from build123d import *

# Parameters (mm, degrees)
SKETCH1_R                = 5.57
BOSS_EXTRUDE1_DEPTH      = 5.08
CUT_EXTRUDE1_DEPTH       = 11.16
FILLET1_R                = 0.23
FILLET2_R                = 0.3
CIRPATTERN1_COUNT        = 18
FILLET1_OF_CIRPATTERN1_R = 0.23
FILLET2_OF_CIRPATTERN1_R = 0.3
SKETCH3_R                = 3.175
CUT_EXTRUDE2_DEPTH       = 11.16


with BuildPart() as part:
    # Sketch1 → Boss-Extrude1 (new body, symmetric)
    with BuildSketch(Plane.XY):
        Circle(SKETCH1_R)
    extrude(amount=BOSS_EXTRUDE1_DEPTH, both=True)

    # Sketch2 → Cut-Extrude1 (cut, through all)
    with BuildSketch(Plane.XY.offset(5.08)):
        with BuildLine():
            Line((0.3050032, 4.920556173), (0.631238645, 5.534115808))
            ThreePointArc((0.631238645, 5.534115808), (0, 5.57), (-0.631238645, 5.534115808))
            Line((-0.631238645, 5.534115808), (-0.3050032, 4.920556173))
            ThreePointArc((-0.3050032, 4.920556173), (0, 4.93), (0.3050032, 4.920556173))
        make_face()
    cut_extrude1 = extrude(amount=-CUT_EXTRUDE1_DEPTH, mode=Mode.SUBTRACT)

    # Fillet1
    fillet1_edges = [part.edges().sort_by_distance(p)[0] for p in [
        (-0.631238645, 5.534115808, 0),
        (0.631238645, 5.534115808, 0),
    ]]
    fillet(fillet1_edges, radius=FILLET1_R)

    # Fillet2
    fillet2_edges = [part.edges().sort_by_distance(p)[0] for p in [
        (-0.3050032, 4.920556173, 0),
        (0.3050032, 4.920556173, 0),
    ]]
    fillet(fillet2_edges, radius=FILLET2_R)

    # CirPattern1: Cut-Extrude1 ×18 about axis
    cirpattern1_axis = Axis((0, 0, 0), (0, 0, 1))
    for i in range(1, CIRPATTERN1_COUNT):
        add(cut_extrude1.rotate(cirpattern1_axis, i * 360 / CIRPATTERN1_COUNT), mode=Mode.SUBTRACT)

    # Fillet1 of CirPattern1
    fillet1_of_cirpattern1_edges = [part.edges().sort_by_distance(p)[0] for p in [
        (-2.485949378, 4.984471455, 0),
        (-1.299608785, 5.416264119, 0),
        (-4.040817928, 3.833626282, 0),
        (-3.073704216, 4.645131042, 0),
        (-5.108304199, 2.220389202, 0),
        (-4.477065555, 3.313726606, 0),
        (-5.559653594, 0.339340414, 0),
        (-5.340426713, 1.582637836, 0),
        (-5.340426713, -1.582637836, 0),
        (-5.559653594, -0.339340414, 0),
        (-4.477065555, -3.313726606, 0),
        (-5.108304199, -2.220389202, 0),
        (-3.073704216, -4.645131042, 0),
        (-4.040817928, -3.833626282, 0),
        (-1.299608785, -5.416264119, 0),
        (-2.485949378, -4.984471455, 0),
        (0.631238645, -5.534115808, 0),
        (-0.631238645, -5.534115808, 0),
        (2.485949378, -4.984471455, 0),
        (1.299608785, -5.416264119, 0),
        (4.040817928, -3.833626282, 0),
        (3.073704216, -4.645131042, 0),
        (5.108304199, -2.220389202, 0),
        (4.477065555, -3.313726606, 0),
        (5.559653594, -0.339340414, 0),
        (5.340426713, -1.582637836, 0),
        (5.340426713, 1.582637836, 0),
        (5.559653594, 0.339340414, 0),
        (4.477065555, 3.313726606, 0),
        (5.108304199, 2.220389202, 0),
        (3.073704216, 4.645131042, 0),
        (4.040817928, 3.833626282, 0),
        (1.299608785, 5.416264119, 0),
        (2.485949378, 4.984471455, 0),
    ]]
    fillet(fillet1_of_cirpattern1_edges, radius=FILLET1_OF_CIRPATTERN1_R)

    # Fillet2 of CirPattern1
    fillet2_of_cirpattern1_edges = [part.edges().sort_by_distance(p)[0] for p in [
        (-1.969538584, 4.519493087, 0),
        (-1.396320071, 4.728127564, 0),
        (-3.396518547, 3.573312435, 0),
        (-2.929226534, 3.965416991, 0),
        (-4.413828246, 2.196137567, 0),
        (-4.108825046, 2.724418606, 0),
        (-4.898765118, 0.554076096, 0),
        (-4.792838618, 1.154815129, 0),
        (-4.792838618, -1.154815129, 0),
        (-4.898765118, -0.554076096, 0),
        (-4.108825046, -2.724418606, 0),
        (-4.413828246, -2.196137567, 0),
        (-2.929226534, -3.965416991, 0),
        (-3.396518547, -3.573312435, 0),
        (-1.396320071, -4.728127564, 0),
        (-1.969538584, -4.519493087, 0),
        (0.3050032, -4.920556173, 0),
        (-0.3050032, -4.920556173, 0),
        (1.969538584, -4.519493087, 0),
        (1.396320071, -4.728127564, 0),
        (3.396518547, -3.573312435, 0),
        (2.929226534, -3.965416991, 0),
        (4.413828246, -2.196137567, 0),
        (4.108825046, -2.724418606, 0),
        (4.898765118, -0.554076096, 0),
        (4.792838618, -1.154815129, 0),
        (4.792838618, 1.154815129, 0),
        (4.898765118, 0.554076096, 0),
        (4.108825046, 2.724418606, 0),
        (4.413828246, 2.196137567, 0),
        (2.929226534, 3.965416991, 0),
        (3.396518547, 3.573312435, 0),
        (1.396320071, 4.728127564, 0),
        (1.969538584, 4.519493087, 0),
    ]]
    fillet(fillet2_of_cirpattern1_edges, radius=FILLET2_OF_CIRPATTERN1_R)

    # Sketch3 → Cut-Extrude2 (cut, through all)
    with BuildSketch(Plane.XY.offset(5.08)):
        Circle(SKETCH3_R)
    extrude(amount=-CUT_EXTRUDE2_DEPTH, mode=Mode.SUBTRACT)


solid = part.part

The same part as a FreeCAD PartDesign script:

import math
import FreeCAD as App
import Part
import Sketcher
from FreeCAD import Vector
Q = App.Units.Quantity


def edges_at(feature, points):
    """Names of the edges that pass closest to the given points."""
    edges = feature.Shape.Edges
    near = lambda p: min(range(len(edges)), key=lambda i: edges[i].distToShape(Part.Vertex(*p))[0])
    return sorted({f"Edge{near(p) + 1}" for p in points})

doc = App.newDocument("Part")
body = doc.addObject("PartDesign::Body", "Body")

# Sketch on XY plane
sketch1 = doc.addObject("Sketcher::SketchObject", "Sketch")
body.addObject(sketch1)
sketch1.AttachmentSupport = (doc.XY_Plane, [""])
sketch1.MapMode = "FlatFace"
sketch1.addGeometry(Part.Circle(Vector(0, 0, 0), Vector(0, 0, 1), 5.57), False)
sketch1.addConstraint([
    Sketcher.Constraint("Coincident", 0, 3, -1, 1),
    Sketcher.Constraint("Diameter", 0, 11.14),
])
pad1 = doc.addObject("PartDesign::Pad", "Pad")
body.addObject(pad1)
pad1.Profile = sketch1
pad1.Length = Q("0.4 in")
pad1.Midplane = True

# Sketch on XY plane
sketch2 = doc.addObject("Sketcher::SketchObject", "Sketch001")
body.addObject(sketch2)
sketch2.AttachmentSupport = (doc.XY_Plane, [""])
sketch2.MapMode = "FlatFace"
sketch2.AttachmentOffset = App.Placement(Vector(0, 0, 0.2 * 25.4), App.Rotation())
sketch2.addGeometry([
    Part.LineSegment(Vector(0.305003, 4.920556, 0), Vector(0.631239, 5.534116, 0)),
    Part.ArcOfCircle(Part.Circle(Vector(0, 0, 0), Vector(0, 0, 1), 5.57), math.radians(83.492787), math.radians(96.507213)),
    Part.LineSegment(Vector(-0.631239, 5.534116, 0), Vector(-0.305003, 4.920556, 0)),
    Part.ArcOfCircle(Part.Circle(Vector(0, 0, 0), Vector(0, 0, 1), 4.93), math.radians(86.45303), math.radians(93.54697)),
], False)
sketch2.addConstraint([
    Sketcher.Constraint("Coincident", 0, 2, 1, 1),
    Sketcher.Constraint("Coincident", 1, 2, 2, 1),
    Sketcher.Constraint("Coincident", 2, 2, 3, 2),
    Sketcher.Constraint("Coincident", 3, 1, 0, 1),
    Sketcher.Constraint("Coincident", 1, 3, -1, 1),
    Sketcher.Constraint("Coincident", 3, 3, -1, 1),
    Sketcher.Constraint("Horizontal", 0, 2, 1, 2),
    Sketcher.Constraint("Horizontal", 2, 2, 3, 1),
    Sketcher.Constraint("Angle", 0, Q("62 deg")),
    Sketcher.Constraint("Radius", 1, 5.57),
    Sketcher.Constraint("Radius", 3, 4.93),
    Sketcher.Constraint("Distance", 0, 0.694899),
])
pocket1 = doc.addObject("PartDesign::Pocket", "Pocket")
body.addObject(pocket1)
pocket1.Profile = sketch2
pocket1.Type = "ThroughAll"
doc.recompute()

fillet = doc.addObject("PartDesign::Fillet", "Fillet")
body.addObject(fillet)
fillet.Base = (pocket1, edges_at(pocket1, [(-0.631, 5.534, 0), (0.631, 5.534, 0)]))
fillet.Radius = 0.23
doc.recompute()

fillet2 = doc.addObject("PartDesign::Fillet", "Fillet001")
body.addObject(fillet2)
fillet2.Base = (fillet, edges_at(fillet, [(-0.305, 4.921, 0), (0.305, 4.921, 0)]))
fillet2.Radius = 0.3
doc.recompute()

polarpattern = doc.addObject("PartDesign::PolarPattern", "PolarPattern")
body.addObject(polarpattern)
polarpattern.Originals = [pocket1]
polarpattern.Axis = (doc.Z_Axis, [""])
polarpattern.Angle = 360
polarpattern.Occurrences = 18
body.Tip = polarpattern
doc.recompute()

fillet3 = doc.addObject("PartDesign::Fillet", "Fillet002")
body.addObject(fillet3)
fillet3.Base = (polarpattern, edges_at(polarpattern, [
    (-2.486, 4.984, 0),
    (-1.3, 5.416, 0),
    (-4.041, 3.834, 0),
    (-3.074, 4.645, 0),
    (-5.108, 2.22, 0),
    (-4.477, 3.314, 0),
    (-5.56, 0.339, 0),
    (-5.34, 1.583, 0),
    (-5.34, -1.583, 0),
    (-5.56, -0.339, 0),
    (-4.477, -3.314, 0),
    (-5.108, -2.22, 0),
    (-3.074, -4.645, 0),
    (-4.041, -3.834, 0),
    (-1.3, -5.416, 0),
    (-2.486, -4.984, 0),
    (0.631, -5.534, 0),
    (-0.631, -5.534, 0),
    (2.486, -4.984, 0),
    (1.3, -5.416, 0),
    (4.041, -3.834, 0),
    (3.074, -4.645, 0),
    (5.108, -2.22, 0),
    (4.477, -3.314, 0),
    (5.56, -0.339, 0),
    (5.34, -1.583, 0),
    (5.34, 1.583, 0),
    (5.56, 0.339, 0),
    (4.477, 3.314, 0),
    (5.108, 2.22, 0),
    (3.074, 4.645, 0),
    (4.041, 3.834, 0),
    (1.3, 5.416, 0),
    (2.486, 4.984, 0),
]))
fillet3.Radius = 0.23
doc.recompute()

fillet4 = doc.addObject("PartDesign::Fillet", "Fillet003")
body.addObject(fillet4)
fillet4.Base = (fillet3, edges_at(fillet3, [
    (-1.97, 4.519, 0),
    (-1.396, 4.728, 0),
    (-3.397, 3.573, 0),
    (-2.929, 3.965, 0),
    (-4.414, 2.196, 0),
    (-4.109, 2.724, 0),
    (-4.899, 0.554, 0),
    (-4.793, 1.155, 0),
    (-4.793, -1.155, 0),
    (-4.899, -0.554, 0),
    (-4.109, -2.724, 0),
    (-4.414, -2.196, 0),
    (-2.929, -3.965, 0),
    (-3.397, -3.573, 0),
    (-1.396, -4.728, 0),
    (-1.97, -4.519, 0),
    (0.305, -4.921, 0),
    (-0.305, -4.921, 0),
    (1.97, -4.519, 0),
    (1.396, -4.728, 0),
    (3.397, -3.573, 0),
    (2.929, -3.965, 0),
    (4.414, -2.196, 0),
    (4.109, -2.724, 0),
    (4.899, -0.554, 0),
    (4.793, -1.155, 0),
    (4.793, 1.155, 0),
    (4.899, 0.554, 0),
    (4.109, 2.724, 0),
    (4.414, 2.196, 0),
    (2.929, 3.965, 0),
    (3.397, 3.573, 0),
    (1.396, 4.728, 0),
    (1.97, 4.519, 0),
]))
fillet4.Radius = 0.3

# Sketch on XY plane
sketch3 = doc.addObject("Sketcher::SketchObject", "Sketch002")
body.addObject(sketch3)
sketch3.AttachmentSupport = (doc.XY_Plane, [""])
sketch3.MapMode = "FlatFace"
sketch3.AttachmentOffset = App.Placement(Vector(0, 0, 0.2 * 25.4), App.Rotation())
sketch3.addGeometry(Part.Circle(Vector(0, 0, 0), Vector(0, 0, 1), 3.175), False)
sketch3.addConstraint([
    Sketcher.Constraint("Coincident", 0, 3, -1, 1),
    Sketcher.Constraint("Diameter", 0, Q("0.25 in")),
])
pocket2 = doc.addObject("PartDesign::Pocket", "Pocket001")
body.addObject(pocket2)
pocket2.Profile = sketch3
pocket2.Type = "ThroughAll"

doc.recompute()
